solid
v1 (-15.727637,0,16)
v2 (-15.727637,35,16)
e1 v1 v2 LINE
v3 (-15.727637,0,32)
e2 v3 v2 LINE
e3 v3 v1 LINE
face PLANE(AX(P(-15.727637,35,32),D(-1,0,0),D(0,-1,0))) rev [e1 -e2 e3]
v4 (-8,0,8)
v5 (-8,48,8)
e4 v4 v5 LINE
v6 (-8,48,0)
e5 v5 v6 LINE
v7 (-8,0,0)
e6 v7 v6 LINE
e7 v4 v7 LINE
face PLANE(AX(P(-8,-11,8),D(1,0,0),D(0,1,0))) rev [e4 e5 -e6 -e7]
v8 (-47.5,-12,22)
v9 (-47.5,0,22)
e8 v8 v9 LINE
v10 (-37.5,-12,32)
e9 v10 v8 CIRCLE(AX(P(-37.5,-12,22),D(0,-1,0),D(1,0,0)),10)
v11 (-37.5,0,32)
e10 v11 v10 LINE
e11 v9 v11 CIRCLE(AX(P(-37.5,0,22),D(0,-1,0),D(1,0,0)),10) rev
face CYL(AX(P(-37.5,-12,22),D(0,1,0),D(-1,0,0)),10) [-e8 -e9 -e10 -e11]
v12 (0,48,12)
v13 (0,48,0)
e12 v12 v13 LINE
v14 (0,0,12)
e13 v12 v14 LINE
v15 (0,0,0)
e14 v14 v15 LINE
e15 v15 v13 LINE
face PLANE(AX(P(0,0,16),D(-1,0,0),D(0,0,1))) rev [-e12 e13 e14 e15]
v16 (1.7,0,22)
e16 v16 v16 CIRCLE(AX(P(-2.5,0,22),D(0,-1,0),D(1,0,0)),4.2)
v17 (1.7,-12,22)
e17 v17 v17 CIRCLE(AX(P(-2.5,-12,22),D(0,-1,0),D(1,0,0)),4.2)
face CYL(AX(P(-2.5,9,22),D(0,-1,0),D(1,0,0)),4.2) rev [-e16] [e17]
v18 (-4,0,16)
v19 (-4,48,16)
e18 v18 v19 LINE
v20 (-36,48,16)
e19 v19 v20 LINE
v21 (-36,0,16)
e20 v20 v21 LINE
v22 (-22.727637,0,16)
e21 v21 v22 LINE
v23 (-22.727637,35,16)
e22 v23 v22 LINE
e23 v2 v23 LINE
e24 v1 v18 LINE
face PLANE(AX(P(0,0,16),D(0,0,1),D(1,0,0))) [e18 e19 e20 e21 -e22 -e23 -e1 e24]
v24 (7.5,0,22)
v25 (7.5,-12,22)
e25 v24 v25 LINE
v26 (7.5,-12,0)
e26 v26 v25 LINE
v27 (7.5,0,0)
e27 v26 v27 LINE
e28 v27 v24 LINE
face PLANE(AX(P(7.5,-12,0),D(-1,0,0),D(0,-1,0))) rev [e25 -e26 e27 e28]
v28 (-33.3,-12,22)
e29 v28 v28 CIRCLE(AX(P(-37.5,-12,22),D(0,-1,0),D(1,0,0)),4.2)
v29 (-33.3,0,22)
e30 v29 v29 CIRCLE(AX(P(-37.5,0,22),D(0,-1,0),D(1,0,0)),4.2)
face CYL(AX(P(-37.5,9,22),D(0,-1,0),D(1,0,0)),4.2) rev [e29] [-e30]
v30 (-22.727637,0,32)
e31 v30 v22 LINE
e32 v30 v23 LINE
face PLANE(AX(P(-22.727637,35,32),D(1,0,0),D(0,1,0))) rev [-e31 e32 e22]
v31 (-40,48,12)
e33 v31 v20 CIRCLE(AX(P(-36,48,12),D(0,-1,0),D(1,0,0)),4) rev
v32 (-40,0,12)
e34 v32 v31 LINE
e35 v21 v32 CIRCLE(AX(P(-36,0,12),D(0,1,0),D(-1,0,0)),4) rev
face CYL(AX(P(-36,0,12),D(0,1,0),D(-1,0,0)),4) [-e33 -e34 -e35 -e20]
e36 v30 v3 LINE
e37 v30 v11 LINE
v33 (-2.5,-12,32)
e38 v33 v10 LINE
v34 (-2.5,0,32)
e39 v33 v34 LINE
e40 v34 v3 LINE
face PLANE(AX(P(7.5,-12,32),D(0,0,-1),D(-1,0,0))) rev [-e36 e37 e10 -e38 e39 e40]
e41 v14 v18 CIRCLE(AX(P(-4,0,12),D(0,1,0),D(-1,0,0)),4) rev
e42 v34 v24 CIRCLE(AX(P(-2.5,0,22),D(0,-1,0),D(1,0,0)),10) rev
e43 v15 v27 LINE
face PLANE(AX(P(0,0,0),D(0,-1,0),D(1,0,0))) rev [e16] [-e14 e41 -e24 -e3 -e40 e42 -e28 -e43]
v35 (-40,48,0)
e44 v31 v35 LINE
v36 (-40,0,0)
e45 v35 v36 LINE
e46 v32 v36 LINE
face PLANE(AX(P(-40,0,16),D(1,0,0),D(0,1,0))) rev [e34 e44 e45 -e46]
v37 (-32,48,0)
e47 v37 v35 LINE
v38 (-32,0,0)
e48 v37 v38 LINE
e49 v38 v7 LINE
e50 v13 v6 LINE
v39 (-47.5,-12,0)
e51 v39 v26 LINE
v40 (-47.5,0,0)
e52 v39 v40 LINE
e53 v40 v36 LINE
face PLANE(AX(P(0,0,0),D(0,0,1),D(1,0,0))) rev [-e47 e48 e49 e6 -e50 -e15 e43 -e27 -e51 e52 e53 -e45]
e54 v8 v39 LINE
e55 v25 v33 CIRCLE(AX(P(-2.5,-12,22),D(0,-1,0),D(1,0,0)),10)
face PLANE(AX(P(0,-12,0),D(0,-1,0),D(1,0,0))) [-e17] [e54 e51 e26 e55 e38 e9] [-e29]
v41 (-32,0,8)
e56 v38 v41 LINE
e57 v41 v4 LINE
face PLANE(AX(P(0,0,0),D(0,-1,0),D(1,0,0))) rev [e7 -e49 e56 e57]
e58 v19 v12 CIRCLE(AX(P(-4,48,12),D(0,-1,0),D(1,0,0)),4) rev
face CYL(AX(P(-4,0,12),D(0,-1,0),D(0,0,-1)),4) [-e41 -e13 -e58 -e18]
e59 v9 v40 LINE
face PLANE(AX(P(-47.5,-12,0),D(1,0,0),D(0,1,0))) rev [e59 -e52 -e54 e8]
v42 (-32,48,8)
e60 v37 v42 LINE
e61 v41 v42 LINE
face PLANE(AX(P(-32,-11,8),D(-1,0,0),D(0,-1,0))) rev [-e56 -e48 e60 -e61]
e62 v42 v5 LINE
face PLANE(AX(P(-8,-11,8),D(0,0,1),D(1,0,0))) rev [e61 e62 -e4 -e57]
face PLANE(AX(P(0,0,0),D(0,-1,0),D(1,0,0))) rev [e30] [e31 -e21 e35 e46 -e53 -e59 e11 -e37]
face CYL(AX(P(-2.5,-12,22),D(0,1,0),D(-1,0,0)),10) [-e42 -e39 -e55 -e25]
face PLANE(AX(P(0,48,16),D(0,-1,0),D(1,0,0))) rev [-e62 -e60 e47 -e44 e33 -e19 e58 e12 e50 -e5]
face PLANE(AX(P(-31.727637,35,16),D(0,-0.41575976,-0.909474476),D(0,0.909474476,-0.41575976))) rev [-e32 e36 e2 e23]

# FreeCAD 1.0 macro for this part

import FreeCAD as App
import Part
import Sketcher
from FreeCAD import Vector


def edges_at(feature, points):
    """Names of the edges that pass closest to the given points."""
    edges = feature.Shape.Edges
    near = lambda p: min(range(len(edges)), key=lambda i: edges[i].distToShape(Part.Vertex(*p))[0])
    return sorted({f"Edge{near(p) + 1}" for p in points})


def add_polygon(sketch, points):
    """Adds a closed chain of lines whose ends are joined by coincident constraints."""
    first, n = sketch.GeometryCount, len(points)
    for a, b in zip(points, points[1:] + points[:1]):
        sketch.addGeometry(Part.LineSegment(App.Vector(*a, 0), App.Vector(*b, 0)), False)
    for i in range(n):
        sketch.addConstraint(Sketcher.Constraint("Coincident", first + i, 2, first + (i + 1) % n, 1))

doc = App.newDocument("Part")
params = doc.addObject("Spreadsheet::Sheet", "Params")
for row, (alias, value) in enumerate([
    ("sketch1_width", "40 mm"),
    ("sketch1_height", "48 mm"),
    ("pad1_length", "16 mm"),
    ("fillet_radius", "4 mm"),
    ("sketch2_width", "24 mm"),
    ("sketch2_height", "8 mm"),
    ("pocket1_length", "59 mm"),
    ("sketch3_width", "55 mm"),
    ("sketch3_height", "32 mm"),
    ("pad2_length", "12 mm"),
    ("fillet2_radius", "10 mm"),
    ("sketch4_diameter", "8.4 mm"),
    ("pocket2_length", "21 mm"),
    ("sketch5_width", "7 mm"),
    ("sketch5_height", "35 mm"),
    ("pad3_length", "16 mm"),
    ("sketch6_width", "35 mm"),
    ("sketch6_height", "16 mm"),
    ("pocket3_length", "16 mm"),
], start=1):
    params.set(f"A{row}", alias)
    params.set(f"B{row}", "=" + value)
    params.setAlias(f"B{row}", alias)

body = doc.addObject("PartDesign::Body", "Body")

sketch1 = body.newObject("Sketcher::SketchObject", "Sketch")
sketch1.AttachmentSupport = (doc.getObject("XY_Plane"), [""])
sketch1.MapMode = "FlatFace"
add_polygon(sketch1, [(-40, 48), (-40, 0), (0, 0), (0, 48)])
sketch1.addConstraint(Sketcher.Constraint("Vertical", 0))
sketch1.addConstraint(Sketcher.Constraint("Horizontal", 1))
sketch1.addConstraint(Sketcher.Constraint("Vertical", 2))
sketch1.addConstraint(Sketcher.Constraint("Horizontal", 3))
sketch1.addConstraint(Sketcher.Constraint("Coincident", 1, 2, -1, 1))
sketch1.addConstraint(Sketcher.Constraint("DistanceX", 1, 1, 1, 2, 40.0))
sketch1.addConstraint(Sketcher.Constraint("DistanceY", 0, 2, 0, 1, 48.0))
sketch1.setExpression("Constraints[9]", "Params.sketch1_width")
sketch1.setExpression("Constraints[10]", "Params.sketch1_height")
pad1 = body.newObject("PartDesign::Pad", "Pad")
pad1.Profile = sketch1
pad1.setExpression("Length", "Params.pad1_length")
doc.recompute()

fillet = body.newObject("PartDesign::Fillet", "Fillet")
fillet.Base = (pad1, edges_at(pad1, [(-40, 24, 16), (0, 24, 16)]))
fillet.setExpression("Radius", "Params.fillet_radius")

sketch2 = body.newObject("Sketcher::SketchObject", "Sketch001")
sketch2.AttachmentSupport = (doc.getObject("XZ_Plane"), [""])
sketch2.MapMode = "FlatFace"
sketch2.AttachmentOffset = App.Placement(Vector(0, 0, -48), App.Rotation())
add_polygon(sketch2, [(-32, 0), (-32, 8), (-8, 8), (-8, 0)])
sketch2.addConstraint(Sketcher.Constraint("Vertical", 0))
sketch2.addConstraint(Sketcher.Constraint("Horizontal", 1))
sketch2.addConstraint(Sketcher.Constraint("Vertical", 2))
sketch2.addConstraint(Sketcher.Constraint("Horizontal", 3))
sketch2.addConstraint(Sketcher.Constraint("PointOnObject", 2, 2, -1))
sketch2.addConstraint(Sketcher.Constraint("DistanceX", 1, 1, 1, 2, 24.0))
sketch2.addConstraint(Sketcher.Constraint("DistanceY", 0, 1, 0, 2, 8.0))
sketch2.addConstraint(Sketcher.Constraint("DistanceX", 0, 2, -1, 1, 32.0))
sketch2.setExpression("Constraints[9]", "Params.sketch2_width")
sketch2.setExpression("Constraints[10]", "Params.sketch2_height")
pocket1 = body.newObject("PartDesign::Pocket", "Pocket")
pocket1.Profile = sketch2
pocket1.setExpression("Length", "Params.pocket1_length")
pocket1.Reversed = True

sketch3 = body.newObject("Sketcher::SketchObject", "Sketch002")
sketch3.AttachmentSupport = (doc.getObject("XZ_Plane"), [""])
sketch3.MapMode = "FlatFace"
add_polygon(sketch3, [(-48, 32), (-48, 0), (8, 0), (8, 32)])
sketch3.addConstraint(Sketcher.Constraint("Vertical", 0))
sketch3.addConstraint(Sketcher.Constraint("Horizontal", 1))
sketch3.addConstraint(Sketcher.Constraint("Vertical", 2))
sketch3.addConstraint(Sketcher.Constraint("Horizontal", 3))
sketch3.addConstraint(Sketcher.Constraint("PointOnObject", 0, 2, -1))
sketch3.addConstraint(Sketcher.Constraint("DistanceX", 1, 1, 1, 2, 55.0))
sketch3.addConstraint(Sketcher.Constraint("DistanceY", 0, 2, 0, 1, 32.0))
sketch3.addConstraint(Sketcher.Constraint("DistanceX", 0, 2, -1, 1, 47.5))
sketch3.setExpression("Constraints[9]", "Params.sketch3_width")
sketch3.setExpression("Constraints[10]", "Params.sketch3_height")
pad2 = body.newObject("PartDesign::Pad", "Pad001")
pad2.Profile = sketch3
pad2.setExpression("Length", "Params.pad2_length")
doc.recompute()

fillet2 = body.newObject("PartDesign::Fillet", "Fillet001")
fillet2.Base = (pad2, edges_at(pad2, [(7.5, -6, 32), (-47.5, -6, 32)]))
fillet2.setExpression("Radius", "Params.fillet2_radius")

sketch4 = body.newObject("Sketcher::SketchObject", "Sketch003")
sketch4.AttachmentSupport = (doc.getObject("XZ_Plane"), [""])
sketch4.MapMode = "FlatFace"
sketch4.AttachmentOffset = App.Placement(Vector(0, 0, 12), App.Rotation())
sketch4.addGeometry(Part.Circle(Vector(-37.5, 22, 0), Vector(0, 0, 1), 4.2), False)
sketch4.addGeometry(Part.Circle(Vector(-2.5, 22, 0), Vector(0, 0, 1), 4.2), False)
sketch4.addConstraint(Sketcher.Constraint("Equal", 0, 1))
sketch4.addConstraint(Sketcher.Constraint("Horizontal", 0, 3, 1, 3))
sketch4.addConstraint(Sketcher.Constraint("Diameter", 0, 8.4))
sketch4.addConstraint(Sketcher.Constraint("DistanceY", -1, 1, 0, 3, 22.0))
sketch4.addConstraint(Sketcher.Constraint("DistanceX", 0, 3, 1, 3, 35.0))
sketch4.addConstraint(Sketcher.Constraint("DistanceX", 0, 3, -1, 1, 37.5))
sketch4.setExpression("Constraints[2]", "Params.sketch4_diameter")
pocket2 = body.newObject("PartDesign::Pocket", "Pocket001")
pocket2.Profile = sketch4
pocket2.setExpression("Length", "Params.pocket2_length")

sketch5 = body.newObject("Sketcher::SketchObject", "Sketch004")
sketch5.AttachmentSupport = (doc.getObject("XY_Plane"), [""])
sketch5.MapMode = "FlatFace"
sketch5.AttachmentOffset = App.Placement(Vector(0, 0, 16), App.Rotation())
add_polygon(sketch5, [(-23, 35), (-23, 0), (-16, 0), (-16, 35)])
sketch5.addConstraint(Sketcher.Constraint("Vertical", 0))
sketch5.addConstraint(Sketcher.Constraint("Horizontal", 1))
sketch5.addConstraint(Sketcher.Constraint("Vertical", 2))
sketch5.addConstraint(Sketcher.Constraint("Horizontal", 3))
sketch5.addConstraint(Sketcher.Constraint("PointOnObject", 0, 2, -1))
sketch5.addConstraint(Sketcher.Constraint("DistanceX", 1, 1, 1, 2, 7.0))
sketch5.addConstraint(Sketcher.Constraint("DistanceY", 0, 2, 0, 1, 35.0))
sketch5.addConstraint(Sketcher.Constraint("DistanceX", 0, 2, -1, 1, 22.727637))
sketch5.setExpression("Constraints[9]", "Params.sketch5_width")
sketch5.setExpression("Constraints[10]", "Params.sketch5_height")
pad3 = body.newObject("PartDesign::Pad", "Pad002")
pad3.Profile = sketch5
pad3.setExpression("Length", "Params.pad3_length")

sketch6 = body.newObject("Sketcher::SketchObject", "Sketch005")
sketch6.AttachmentSupport = (doc.getObject("YZ_Plane"), [""])
sketch6.MapMode = "FlatFace"
sketch6.AttachmentOffset = App.Placement(Vector(0, 0, -15.727637), App.Rotation())
add_polygon(sketch6, [(0, 32), (35, 16), (35, 32)])
sketch6.addConstraint(Sketcher.Constraint("Vertical", 1))
sketch6.addConstraint(Sketcher.Constraint("Horizontal", 2))
sketch6.addConstraint(Sketcher.Constraint("PointOnObject", 2, 2, -2))
sketch6.addConstraint(Sketcher.Constraint("DistanceX", 2, 2, 2, 1, 35.0))
sketch6.addConstraint(Sketcher.Constraint("DistanceY", 1, 1, 1, 2, 16.0))
sketch6.addConstraint(Sketcher.Constraint("DistanceY", -1, 1, 0, 2, 16.0))
sketch6.setExpression("Constraints[6]", "Params.sketch6_width")
sketch6.setExpression("Constraints[7]", "Params.sketch6_height")
pocket3 = body.newObject("PartDesign::Pocket", "Pocket002")
pocket3.Profile = sketch6
pocket3.setExpression("Length", "Params.pocket3_length")

doc.recompute()
